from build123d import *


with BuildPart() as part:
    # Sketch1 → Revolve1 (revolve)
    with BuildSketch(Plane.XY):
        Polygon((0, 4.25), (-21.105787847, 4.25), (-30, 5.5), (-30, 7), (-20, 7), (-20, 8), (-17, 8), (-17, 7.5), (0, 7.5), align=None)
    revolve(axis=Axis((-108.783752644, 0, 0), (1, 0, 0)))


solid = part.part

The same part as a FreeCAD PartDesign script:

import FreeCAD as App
import Part
import Sketcher
Q = App.Units.Quantity

doc = App.newDocument("Part")
body = doc.addObject("PartDesign::Body", "Body")

# Sketch on XY plane
sketch1 = body.newObject("Sketcher::SketchObject", "Sketch")
sketch1.AttachmentSupport = (doc.getObject("XY_Plane"), [""])
sketch1.MapMode = "FlatFace"
sketch1.addGeometry([
    Part.LineSegment(App.Vector(-21.1, 4.2, 0), App.Vector(0, 4.2, 0)),  # 0
    Part.LineSegment(App.Vector(0, 4.2, 0), App.Vector(0, 7.5, 0)),  # 1
    Part.LineSegment(App.Vector(0, 7.5, 0), App.Vector(-17, 7.5, 0)),  # 2
    Part.LineSegment(App.Vector(-17, 7.5, 0), App.Vector(-17, 8, 0)),  # 3
    Part.LineSegment(App.Vector(-17, 8, 0), App.Vector(-20, 8, 0)),  # 4
    Part.LineSegment(App.Vector(-20, 8, 0), App.Vector(-20, 7, 0)),  # 5
    Part.LineSegment(App.Vector(-20, 7, 0), App.Vector(-30, 7, 0)),  # 6
    Part.LineSegment(App.Vector(-30, 7, 0), App.Vector(-30, 5.5, 0)),  # 7
    Part.LineSegment(App.Vector(-30, 5.5, 0), App.Vector(-21.1, 4.2, 0)),  # 8
], False)
sketch1.addConstraint([
    Sketcher.Constraint("Coincident", 0, 2, 1, 1),
    Sketcher.Constraint("Coincident", 1, 2, 2, 1),
    Sketcher.Constraint("Coincident", 2, 2, 3, 1),
    Sketcher.Constraint("Coincident", 3, 2, 4, 1),
    Sketcher.Constraint("Coincident", 4, 2, 5, 1),
    Sketcher.Constraint("Coincident", 5, 2, 6, 1),
    Sketcher.Constraint("Coincident", 6, 2, 7, 1),
    Sketcher.Constraint("Coincident", 7, 2, 8, 1),
    Sketcher.Constraint("Coincident", 8, 2, 0, 1),
    Sketcher.Constraint("Horizontal", 0),
    Sketcher.Constraint("Vertical", 1),
    Sketcher.Constraint("Horizontal", 2),
    Sketcher.Constraint("Vertical", 3),
    Sketcher.Constraint("Horizontal", 4),
    Sketcher.Constraint("Vertical", 5),
    Sketcher.Constraint("Horizontal", 6),
    Sketcher.Constraint("Vertical", 7),
    Sketcher.Constraint("PointOnObject", 0, 2, -2),
    Sketcher.Constraint("DistanceX", 2, 2, 2, 1, Q("17 mm")),
    Sketcher.Constraint("DistanceX", 4, 2, 4, 1, Q("3 mm")),
    Sketcher.Constraint("DistanceX", 6, 2, 6, 1, Q("10 mm")),
    Sketcher.Constraint("DistanceY", 5, 2, 5, 1, Q("1 mm")),
    Sketcher.Constraint("Angle", 8, Q("-8 deg")),
    Sketcher.Constraint("DistanceY", 3, 1, 3, 2, Q("0.5 mm")),
    Sketcher.Constraint("DistanceY", 7, 2, 7, 1, Q("1.5 mm")),
    Sketcher.Constraint("DistanceY", -1, 1, 3, 2, Q("8 mm")),
    Sketcher.Constraint("DistanceY", 1, 1, 1, 2, Q("3.25 mm")),
])
revolution = body.newObject("PartDesign::Revolution", "Revolution")
revolution.Profile = sketch1
revolution.ReferenceAxis = (sketch1, ["H_Axis"])
revolution.Angle = 360

doc.recompute()
